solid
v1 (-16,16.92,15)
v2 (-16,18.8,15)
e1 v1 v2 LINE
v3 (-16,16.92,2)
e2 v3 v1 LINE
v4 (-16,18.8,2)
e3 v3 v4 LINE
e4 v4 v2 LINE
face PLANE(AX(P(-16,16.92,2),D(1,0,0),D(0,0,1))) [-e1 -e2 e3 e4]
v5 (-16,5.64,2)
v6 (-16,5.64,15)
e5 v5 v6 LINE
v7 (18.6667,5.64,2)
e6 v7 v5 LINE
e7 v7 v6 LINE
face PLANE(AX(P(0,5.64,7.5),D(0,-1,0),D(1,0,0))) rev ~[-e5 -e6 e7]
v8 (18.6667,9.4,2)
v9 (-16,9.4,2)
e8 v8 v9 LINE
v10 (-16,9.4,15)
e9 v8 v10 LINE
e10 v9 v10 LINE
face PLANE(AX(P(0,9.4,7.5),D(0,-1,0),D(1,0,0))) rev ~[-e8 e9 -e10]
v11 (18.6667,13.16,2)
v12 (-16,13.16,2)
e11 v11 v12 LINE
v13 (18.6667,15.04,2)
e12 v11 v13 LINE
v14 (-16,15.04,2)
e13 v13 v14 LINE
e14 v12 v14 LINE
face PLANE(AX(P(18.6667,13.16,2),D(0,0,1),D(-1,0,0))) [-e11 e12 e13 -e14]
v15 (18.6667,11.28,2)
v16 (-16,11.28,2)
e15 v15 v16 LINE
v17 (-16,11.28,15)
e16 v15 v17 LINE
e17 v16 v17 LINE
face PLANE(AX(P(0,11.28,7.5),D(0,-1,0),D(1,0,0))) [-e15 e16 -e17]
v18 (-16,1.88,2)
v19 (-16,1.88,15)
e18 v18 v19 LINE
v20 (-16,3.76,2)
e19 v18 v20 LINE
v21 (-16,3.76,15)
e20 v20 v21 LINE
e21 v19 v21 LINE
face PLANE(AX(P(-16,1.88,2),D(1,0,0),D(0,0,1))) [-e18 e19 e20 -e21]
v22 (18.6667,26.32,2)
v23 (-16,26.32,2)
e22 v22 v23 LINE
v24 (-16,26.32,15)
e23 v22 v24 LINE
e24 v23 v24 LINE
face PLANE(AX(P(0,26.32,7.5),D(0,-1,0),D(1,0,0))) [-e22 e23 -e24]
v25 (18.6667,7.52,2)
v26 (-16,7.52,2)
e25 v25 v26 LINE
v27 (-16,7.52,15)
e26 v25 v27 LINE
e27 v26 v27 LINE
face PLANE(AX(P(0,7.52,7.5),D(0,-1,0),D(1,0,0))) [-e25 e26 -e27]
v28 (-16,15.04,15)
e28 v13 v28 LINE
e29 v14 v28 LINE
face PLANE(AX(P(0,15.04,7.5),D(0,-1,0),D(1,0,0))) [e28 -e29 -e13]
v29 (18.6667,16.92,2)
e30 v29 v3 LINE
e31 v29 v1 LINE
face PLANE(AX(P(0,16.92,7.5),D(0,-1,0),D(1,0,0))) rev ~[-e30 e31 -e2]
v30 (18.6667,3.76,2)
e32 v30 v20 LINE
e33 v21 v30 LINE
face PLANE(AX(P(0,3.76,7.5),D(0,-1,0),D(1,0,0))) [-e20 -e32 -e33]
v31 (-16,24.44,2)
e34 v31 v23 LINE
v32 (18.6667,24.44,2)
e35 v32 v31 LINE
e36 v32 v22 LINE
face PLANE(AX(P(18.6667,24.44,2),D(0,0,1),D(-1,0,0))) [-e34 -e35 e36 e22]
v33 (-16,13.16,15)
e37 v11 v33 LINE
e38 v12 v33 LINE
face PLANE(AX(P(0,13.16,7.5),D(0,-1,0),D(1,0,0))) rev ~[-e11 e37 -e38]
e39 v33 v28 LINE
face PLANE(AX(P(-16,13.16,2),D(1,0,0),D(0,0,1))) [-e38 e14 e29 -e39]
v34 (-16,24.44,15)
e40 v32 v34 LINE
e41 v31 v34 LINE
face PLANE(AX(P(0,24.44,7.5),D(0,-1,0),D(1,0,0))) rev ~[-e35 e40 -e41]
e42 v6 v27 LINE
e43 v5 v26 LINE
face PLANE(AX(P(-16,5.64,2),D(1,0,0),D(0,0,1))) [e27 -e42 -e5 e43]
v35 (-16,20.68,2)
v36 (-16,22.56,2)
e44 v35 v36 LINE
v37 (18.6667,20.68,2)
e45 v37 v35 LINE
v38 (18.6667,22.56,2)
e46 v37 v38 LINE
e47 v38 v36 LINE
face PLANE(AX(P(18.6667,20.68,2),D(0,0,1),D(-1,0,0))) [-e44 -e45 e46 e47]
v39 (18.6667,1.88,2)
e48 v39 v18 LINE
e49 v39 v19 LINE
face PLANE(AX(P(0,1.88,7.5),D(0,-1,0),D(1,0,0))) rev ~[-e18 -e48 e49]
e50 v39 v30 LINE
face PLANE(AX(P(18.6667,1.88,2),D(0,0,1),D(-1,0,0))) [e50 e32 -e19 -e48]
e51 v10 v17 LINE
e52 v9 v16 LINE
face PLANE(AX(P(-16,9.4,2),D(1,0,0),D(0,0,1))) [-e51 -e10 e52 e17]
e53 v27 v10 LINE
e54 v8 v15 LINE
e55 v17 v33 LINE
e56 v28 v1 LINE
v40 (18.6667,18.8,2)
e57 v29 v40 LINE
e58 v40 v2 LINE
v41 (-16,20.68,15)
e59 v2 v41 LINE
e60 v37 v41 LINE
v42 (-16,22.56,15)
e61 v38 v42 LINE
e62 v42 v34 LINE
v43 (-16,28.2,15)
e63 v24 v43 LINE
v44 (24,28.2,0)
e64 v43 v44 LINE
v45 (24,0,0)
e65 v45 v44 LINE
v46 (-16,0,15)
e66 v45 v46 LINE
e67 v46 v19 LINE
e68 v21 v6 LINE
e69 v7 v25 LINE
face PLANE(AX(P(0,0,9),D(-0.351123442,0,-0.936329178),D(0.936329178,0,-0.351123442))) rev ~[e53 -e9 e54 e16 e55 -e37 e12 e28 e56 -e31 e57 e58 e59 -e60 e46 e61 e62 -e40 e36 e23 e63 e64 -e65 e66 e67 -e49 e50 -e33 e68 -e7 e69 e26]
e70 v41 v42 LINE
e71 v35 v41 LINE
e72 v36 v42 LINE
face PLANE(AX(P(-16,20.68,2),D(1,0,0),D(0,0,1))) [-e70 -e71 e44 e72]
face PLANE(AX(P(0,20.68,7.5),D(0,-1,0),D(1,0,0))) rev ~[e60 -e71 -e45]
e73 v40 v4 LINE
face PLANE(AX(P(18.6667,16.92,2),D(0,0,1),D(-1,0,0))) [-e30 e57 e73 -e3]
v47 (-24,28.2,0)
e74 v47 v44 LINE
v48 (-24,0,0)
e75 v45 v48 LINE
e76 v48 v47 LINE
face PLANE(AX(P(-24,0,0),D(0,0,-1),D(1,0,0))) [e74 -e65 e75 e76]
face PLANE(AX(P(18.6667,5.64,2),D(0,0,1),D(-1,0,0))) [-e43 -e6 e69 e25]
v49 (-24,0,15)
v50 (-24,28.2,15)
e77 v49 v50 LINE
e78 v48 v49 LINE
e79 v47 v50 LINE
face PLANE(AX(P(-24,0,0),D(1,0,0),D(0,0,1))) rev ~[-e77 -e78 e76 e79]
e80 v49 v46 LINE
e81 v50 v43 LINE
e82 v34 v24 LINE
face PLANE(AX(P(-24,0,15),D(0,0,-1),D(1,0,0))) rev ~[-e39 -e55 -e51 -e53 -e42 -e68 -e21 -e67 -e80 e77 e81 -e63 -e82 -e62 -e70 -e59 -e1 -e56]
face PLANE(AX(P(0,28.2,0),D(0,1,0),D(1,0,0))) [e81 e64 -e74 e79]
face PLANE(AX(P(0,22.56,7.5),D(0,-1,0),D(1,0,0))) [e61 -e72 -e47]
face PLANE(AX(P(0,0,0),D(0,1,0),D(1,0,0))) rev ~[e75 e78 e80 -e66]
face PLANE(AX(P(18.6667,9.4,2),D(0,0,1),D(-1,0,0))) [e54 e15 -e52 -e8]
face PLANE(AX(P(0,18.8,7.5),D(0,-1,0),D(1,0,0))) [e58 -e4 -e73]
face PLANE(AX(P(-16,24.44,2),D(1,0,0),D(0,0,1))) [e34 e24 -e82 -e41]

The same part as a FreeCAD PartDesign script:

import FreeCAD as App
import Part
import Sketcher
from FreeCAD import Vector

doc = App.newDocument("Part")
body = doc.addObject("PartDesign::Body", "Body")

# Sketch on XZ plane
sketch1 = body.newObject("Sketcher::SketchObject", "Sketch")
sketch1.AttachmentSupport = (doc.getObject("XZ_Plane"), [""])
sketch1.MapMode = "FlatFace"
sketch1.addGeometry([
    Part.LineSegment(Vector(24, 0, 0), Vector(-24, 0, 0)),
    Part.LineSegment(Vector(-24, 0, 0), Vector(-24, 15, 0)),
    Part.LineSegment(Vector(-24, 15, 0), Vector(-16, 15, 0)),
    Part.LineSegment(Vector(-16, 15, 0), Vector(24, 0, 0)),
], False)
sketch1.addConstraint([
    Sketcher.Constraint("Coincident", 0, 2, 1, 1),
    Sketcher.Constraint("Coincident", 1, 2, 2, 1),
    Sketcher.Constraint("Coincident", 2, 2, 3, 1),
    Sketcher.Constraint("Coincident", 3, 2, 0, 1),
    Sketcher.Constraint("Horizontal", 0),
    Sketcher.Constraint("Vertical", 1),
    Sketcher.Constraint("Horizontal", 2),
    Sketcher.Constraint("Symmetric", 0, 2, 3, 2, -1, 1),
    Sketcher.Constraint("DistanceX", 0, 2, 0, 1, 48.0),
    Sketcher.Constraint("DistanceX", 2, 1, 2, 2, 8.0),
    Sketcher.Constraint("DistanceY", 1, 1, 1, 2, 15.0),
])
pad1 = body.newObject("PartDesign::Pad", "Pad")
pad1.Profile = sketch1
pad1.Length = 28.2
pad1.Reversed = True

# Sketch on XZ plane
sketch2 = body.newObject("Sketcher::SketchObject", "Sketch001")
sketch2.AttachmentSupport = (doc.getObject("XZ_Plane"), [""])
sketch2.MapMode = "FlatFace"
sketch2.AttachmentOffset = App.Placement(Vector(0, 0, -1.88), App.Rotation())
sketch2.addGeometry([
    Part.LineSegment(Vector(19, 15, 0), Vector(-16, 15, 0)),
    Part.LineSegment(Vector(-16, 15, 0), Vector(-16, 2, 0)),
    Part.LineSegment(Vector(-16, 2, 0), Vector(19, 2, 0)),
    Part.LineSegment(Vector(19, 2, 0), Vector(19, 15, 0)),
], False)
sketch2.addConstraint([
    Sketcher.Constraint("Coincident", 0, 2, 1, 1),
    Sketcher.Constraint("Coincident", 1, 2, 2, 1),
    Sketcher.Constraint("Coincident", 2, 2, 3, 1),
    Sketcher.Constraint("Coincident", 3, 2, 0, 1),
    Sketcher.Constraint("Horizontal", 0),
    Sketcher.Constraint("Vertical", 1),
    Sketcher.Constraint("Horizontal", 2),
    Sketcher.Constraint("Vertical", 3),
    Sketcher.Constraint("DistanceY", -1, 1, 1, 2, 2.0),
    Sketcher.Constraint("DistanceY", 1, 2, 1, 1, 13.0),
    Sketcher.Constraint("DistanceX", 0, 2, -1, 1, 16.0),
    Sketcher.Constraint("DistanceX", 0, 2, 0, 1, 34.6667),
])
pocket1 = body.newObject("PartDesign::Pocket", "Pocket")
pocket1.Profile = sketch2
pocket1.Length = 1.88
doc.recompute()

linearpattern = body.newObject("PartDesign::LinearPattern", "LinearPattern")
linearpattern.Originals = [pocket1]
linearpattern.Direction = (doc.getObject("Y_Axis"), [""])
linearpattern.Mode = "offset"
linearpattern.Offset = 3.76
linearpattern.Occurrences = 7
body.Tip = linearpattern

doc.recompute()
